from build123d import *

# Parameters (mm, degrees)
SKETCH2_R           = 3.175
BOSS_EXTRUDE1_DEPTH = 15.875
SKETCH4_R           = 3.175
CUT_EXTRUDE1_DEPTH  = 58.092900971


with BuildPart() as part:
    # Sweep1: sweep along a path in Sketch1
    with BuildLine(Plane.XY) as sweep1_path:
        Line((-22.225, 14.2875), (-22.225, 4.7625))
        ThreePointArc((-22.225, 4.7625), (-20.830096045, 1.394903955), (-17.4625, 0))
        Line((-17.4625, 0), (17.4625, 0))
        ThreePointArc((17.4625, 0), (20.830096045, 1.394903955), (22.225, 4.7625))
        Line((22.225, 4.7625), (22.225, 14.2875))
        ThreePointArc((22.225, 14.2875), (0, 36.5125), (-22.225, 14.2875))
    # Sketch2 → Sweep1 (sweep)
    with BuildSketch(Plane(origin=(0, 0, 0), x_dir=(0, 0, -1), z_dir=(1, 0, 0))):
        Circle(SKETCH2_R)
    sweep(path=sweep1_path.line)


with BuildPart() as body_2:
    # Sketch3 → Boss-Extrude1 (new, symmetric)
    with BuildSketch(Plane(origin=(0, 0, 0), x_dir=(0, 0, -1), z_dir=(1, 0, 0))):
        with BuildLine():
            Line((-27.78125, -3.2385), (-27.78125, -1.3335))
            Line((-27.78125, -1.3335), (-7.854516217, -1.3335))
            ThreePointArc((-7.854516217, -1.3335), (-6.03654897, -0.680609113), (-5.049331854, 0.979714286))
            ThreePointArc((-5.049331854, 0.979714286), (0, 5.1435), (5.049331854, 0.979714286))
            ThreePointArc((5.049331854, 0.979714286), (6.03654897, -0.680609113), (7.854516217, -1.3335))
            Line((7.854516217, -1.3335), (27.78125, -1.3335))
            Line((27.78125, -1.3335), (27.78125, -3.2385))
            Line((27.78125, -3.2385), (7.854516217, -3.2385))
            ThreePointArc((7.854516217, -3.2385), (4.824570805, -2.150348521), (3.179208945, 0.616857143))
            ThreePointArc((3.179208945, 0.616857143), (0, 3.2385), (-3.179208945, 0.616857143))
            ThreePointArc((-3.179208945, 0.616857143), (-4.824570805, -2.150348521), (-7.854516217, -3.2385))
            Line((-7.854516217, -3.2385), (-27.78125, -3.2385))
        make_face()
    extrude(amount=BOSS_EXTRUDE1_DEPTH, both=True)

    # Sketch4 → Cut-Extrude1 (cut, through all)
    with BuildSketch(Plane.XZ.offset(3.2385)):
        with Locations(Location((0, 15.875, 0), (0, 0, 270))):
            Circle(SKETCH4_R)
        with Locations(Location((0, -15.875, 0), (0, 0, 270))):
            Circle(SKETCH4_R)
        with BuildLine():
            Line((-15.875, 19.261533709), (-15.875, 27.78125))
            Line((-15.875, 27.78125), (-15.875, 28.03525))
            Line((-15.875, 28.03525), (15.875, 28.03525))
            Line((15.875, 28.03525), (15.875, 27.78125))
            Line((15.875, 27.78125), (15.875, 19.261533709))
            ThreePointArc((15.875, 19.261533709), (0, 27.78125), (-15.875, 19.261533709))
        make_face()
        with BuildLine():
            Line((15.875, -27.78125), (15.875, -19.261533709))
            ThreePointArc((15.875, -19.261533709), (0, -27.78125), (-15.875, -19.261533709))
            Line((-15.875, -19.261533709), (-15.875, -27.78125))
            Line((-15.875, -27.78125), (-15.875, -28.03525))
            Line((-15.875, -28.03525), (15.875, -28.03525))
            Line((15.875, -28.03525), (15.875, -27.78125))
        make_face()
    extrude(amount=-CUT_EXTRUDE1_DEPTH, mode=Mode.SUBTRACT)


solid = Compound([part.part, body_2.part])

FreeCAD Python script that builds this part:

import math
import FreeCAD as App
import Part
import Sketcher

V = App.Vector
Q = App.Units.Quantity

doc = App.newDocument("Part")
body = doc.addObject("PartDesign::Body", "Body")

# Sketch on YZ plane
sketch1 = body.newObject("Sketcher::SketchObject", "Sketch")
sketch1.AttachmentSupport = (doc.getObject("YZ_Plane"), [""])
sketch1.MapMode = "FlatFace"
sketch1.addGeometry(Part.Circle(V(0, 0, 0), V(0, 0, 1), 3.2), False)
sketch1.addConstraint(Sketcher.Constraint("Coincident", 0, 3, -1, 1))
sketch1.addConstraint(Sketcher.Constraint("Diameter", 0, Q("0.25 in")))

# Sketch on XY plane
sketch2 = body.newObject("Sketcher::SketchObject", "Sketch001")
sketch2.AttachmentSupport = (doc.getObject("XY_Plane"), [""])
sketch2.MapMode = "FlatFace"
sketch2.addGeometry(Part.LineSegment(V(-22.2, 14.3, 0), V(-22.2, 4.8, 0)), False)
sketch2.addGeometry(Part.ArcOfCircle(Part.Circle(V(-17.5, 4.8, 0), V(0, 0, 1), 4.8), math.radians(-180), math.radians(-90)), False)
sketch2.addGeometry(Part.LineSegment(V(-17.5, 0, 0), V(17.5, 0, 0)), False)
sketch2.addGeometry(Part.ArcOfCircle(Part.Circle(V(17.5, 4.8, 0), V(0, 0, 1), 4.8), math.radians(-90), math.radians(0)), False)
sketch2.addGeometry(Part.LineSegment(V(22.2, 4.8, 0), V(22.2, 14.3, 0)), False)
sketch2.addGeometry(Part.ArcOfCircle(Part.Circle(V(0, 14.3, 0), V(0, 0, 1), 22.2), math.radians(0), math.radians(180)), False)
sketch2.addConstraint(Sketcher.Constraint("Tangent", 0, 2, 1, 1))
sketch2.addConstraint(Sketcher.Constraint("Tangent", 1, 2, 2, 1))
sketch2.addConstraint(Sketcher.Constraint("Tangent", 2, 2, 3, 1))
sketch2.addConstraint(Sketcher.Constraint("Tangent", 3, 2, 4, 1))
sketch2.addConstraint(Sketcher.Constraint("Tangent", 4, 2, 5, 1))
sketch2.addConstraint(Sketcher.Constraint("Tangent", 5, 2, 0, 1))
sketch2.addConstraint(Sketcher.Constraint("Vertical", 0))
sketch2.addConstraint(Sketcher.Constraint("Horizontal", 2))
sketch2.addConstraint(Sketcher.Constraint("Vertical", 4))
sketch2.addConstraint(Sketcher.Constraint("Equal", 1, 3))
sketch2.addConstraint(Sketcher.Constraint("Symmetric", 1, 2, 2, 2, -1, 1))
sketch2.addConstraint(Sketcher.Constraint("Radius", 1, Q("0.1875 in")))
sketch2.addConstraint(Sketcher.Constraint("Radius", 5, Q("0.875 in")))
sketch2.addConstraint(Sketcher.Constraint("DistanceY", 0, 2, 0, 1, Q("0.375 in")))
doc.recompute()

additivepipe = body.newObject("PartDesign::AdditivePipe", "AdditivePipe")
additivepipe.Profile = sketch1
additivepipe.Spine = (sketch2, ["Edge1", "Edge2", "Edge3", "Edge4", "Edge5", "Edge6"])
body2 = doc.addObject("PartDesign::Body", "Body001")

# Sketch on YZ plane
sketch3 = body2.newObject("Sketcher::SketchObject", "Sketch002")
sketch3.AttachmentSupport = (doc.getObject("YZ_Plane001"), [""])
sketch3.MapMode = "FlatFace"
sketch3.addGeometry(Part.LineSegment(V(-1.3, 27.8, 0), V(-3.2, 27.8, 0)), False)
sketch3.addGeometry(Part.LineSegment(V(-3.2, 27.8, 0), V(-3.2, 7.9, 0)), False)
sketch3.addGeometry(Part.ArcOfCircle(Part.Circle(V(1.5, 7.9, 0), V(0, 0, 1), 4.8), math.radians(180), math.radians(259)), False)
sketch3.addGeometry(Part.ArcOfCircle(Part.Circle(V(0, 0, 0), V(0, 0, 1), 3.2), math.radians(-79), math.radians(79)), False)
sketch3.addGeometry(Part.ArcOfCircle(Part.Circle(V(1.5, -7.9, 0), V(0, 0, 1), 4.8), math.radians(101), math.radians(180)), False)
sketch3.addGeometry(Part.LineSegment(V(-3.2, -7.9, 0), V(-3.2, -27.8, 0)), False)
sketch3.addGeometry(Part.LineSegment(V(-3.2, -27.8, 0), V(-1.3, -27.8, 0)), False)
sketch3.addGeometry(Part.LineSegment(V(-1.3, -27.8, 0), V(-1.3, -7.9, 0)), False)
sketch3.addGeometry(Part.ArcOfCircle(Part.Circle(V(1.5, -7.9, 0), V(0, 0, 1), 2.9), math.radians(101), math.radians(180)), False)
sketch3.addGeometry(Part.ArcOfCircle(Part.Circle(V(0, 0, 0), V(0, 0, 1), 5.1), math.radians(-79), math.radians(79)), False)
sketch3.addGeometry(Part.ArcOfCircle(Part.Circle(V(1.5, 7.9, 0), V(0, 0, 1), 2.9), math.radians(180), math.radians(259)), False)
sketch3.addGeometry(Part.LineSegment(V(-1.3, 7.9, 0), V(-1.3, 27.8, 0)), False)
sketch3.addConstraint(Sketcher.Constraint("Coincident", 0, 2, 1, 1))
sketch3.addConstraint(Sketcher.Constraint("Tangent", 1, 2, 2, 1))
sketch3.addConstraint(Sketcher.Constraint("Tangent", 2, 2, 3, 2))
sketch3.addConstraint(Sketcher.Constraint("Tangent", 3, 1, 4, 1))
sketch3.addConstraint(Sketcher.Constraint("Tangent", 4, 2, 5, 1))
sketch3.addConstraint(Sketcher.Constraint("Coincident", 5, 2, 6, 1))
sketch3.addConstraint(Sketcher.Constraint("Coincident", 6, 2, 7, 1))
sketch3.addConstraint(Sketcher.Constraint("Tangent", 7, 2, 8, 2))
sketch3.addConstraint(Sketcher.Constraint("Tangent", 8, 1, 9, 1))
sketch3.addConstraint(Sketcher.Constraint("Tangent", 9, 2, 10, 2))
sketch3.addConstraint(Sketcher.Constraint("Tangent", 10, 1, 11, 1))
sketch3.addConstraint(Sketcher.Constraint("Coincident", 11, 2, 0, 1))
sketch3.addConstraint(Sketcher.Constraint("Horizontal", 0))
sketch3.addConstraint(Sketcher.Constraint("Vertical", 1))
sketch3.addConstraint(Sketcher.Constraint("Vertical", 5))
sketch3.addConstraint(Sketcher.Constraint("Horizontal", 6))
sketch3.addConstraint(Sketcher.Constraint("Vertical", 7))
sketch3.addConstraint(Sketcher.Constraint("Vertical", 11))
sketch3.addConstraint(Sketcher.Constraint("Coincident", 3, 3, -1, 1))
sketch3.addConstraint(Sketcher.Constraint("Coincident", 9, 3, -1, 1))
sketch3.addConstraint(Sketcher.Constraint("Coincident", 8, 3, 4, 3))
sketch3.addConstraint(Sketcher.Constraint("Coincident", 10, 3, 2, 3))
sketch3.addConstraint(Sketcher.Constraint("Equal", 2, 4))
sketch3.addConstraint(Sketcher.Constraint("Symmetric", 0, 2, 5, 2, -1))
sketch3.addConstraint(Sketcher.Constraint("Radius", 2, Q("0.1875 in")))
sketch3.addConstraint(Sketcher.Constraint("Radius", 3, Q("0.1275 in")))
sketch3.addConstraint(Sketcher.Constraint("Radius", 8, Q("0.1125 in")))
sketch3.addConstraint(Sketcher.Constraint("DistanceX", -1, 1, 2, 3, Q("0.06 in")))
sketch3.addConstraint(Sketcher.Constraint("DistanceY", -1, 1, 0, 2, Q("1.09375 in")))
pad1 = body2.newObject("PartDesign::Pad", "Pad")
pad1.Profile = sketch3
pad1.Length = Q("1.25 in")
pad1.Midplane = True

# Sketch on XZ plane
sketch4 = body2.newObject("Sketcher::SketchObject", "Sketch003")
sketch4.AttachmentSupport = (doc.getObject("XZ_Plane001"), [""])
sketch4.MapMode = "FlatFace"
sketch4.AttachmentOffset = App.Placement(V(0, 0, 0.1275 * 25.4), App.Rotation())
sketch4.addGeometry(Part.Circle(V(0, 15.9, 0), V(0, 0, 1), 3.2), False)
sketch4.addGeometry(Part.Circle(V(0, -15.9, 0), V(0, 0, 1), 3.2), False)
sketch4.addGeometry(Part.LineSegment(V(-15.9, 28, 0), V(-15.9, 19.3, 0)), False)
sketch4.addGeometry(Part.ArcOfCircle(Part.Circle(V(0, 8.7, 0), V(0, 0, 1), 19.1), math.radians(34), math.radians(146)), False)
sketch4.addGeometry(Part.LineSegment(V(15.9, 19.3, 0), V(15.9, 28, 0)), False)
sketch4.addGeometry(Part.LineSegment(V(15.9, 28, 0), V(-15.9, 28, 0)), False)
sketch4.addGeometry(Part.ArcOfCircle(Part.Circle(V(0, -8.7, 0), V(0, 0, 1), 19.1), math.radians(-146), math.radians(-34)), False)
sketch4.addGeometry(Part.LineSegment(V(-15.9, -19.3, 0), V(-15.9, -28, 0)), False)
sketch4.addGeometry(Part.LineSegment(V(-15.9, -28, 0), V(15.9, -28, 0)), False)
sketch4.addGeometry(Part.LineSegment(V(15.9, -28, 0), V(15.9, -19.3, 0)), False)
sketch4.addConstraint(Sketcher.Constraint("Coincident", 2, 2, 3, 2))
sketch4.addConstraint(Sketcher.Constraint("Coincident", 3, 1, 4, 1))
sketch4.addConstraint(Sketcher.Constraint("Coincident", 4, 2, 5, 1))
sketch4.addConstraint(Sketcher.Constraint("Coincident", 5, 2, 2, 1))
sketch4.addConstraint(Sketcher.Constraint("Coincident", 6, 1, 7, 1))
sketch4.addConstraint(Sketcher.Constraint("Coincident", 7, 2, 8, 1))
sketch4.addConstraint(Sketcher.Constraint("Coincident", 8, 2, 9, 1))
sketch4.addConstraint(Sketcher.Constraint("Coincident", 9, 2, 6, 2))
sketch4.addConstraint(Sketcher.Constraint("Vertical", 2))
sketch4.addConstraint(Sketcher.Constraint("Vertical", 4))
sketch4.addConstraint(Sketcher.Constraint("Horizontal", 5))
sketch4.addConstraint(Sketcher.Constraint("Vertical", 7))
sketch4.addConstraint(Sketcher.Constraint("Horizontal", 8))
sketch4.addConstraint(Sketcher.Constraint("Vertical", 9))
sketch4.addConstraint(Sketcher.Constraint("Equal", 0, 1))
sketch4.addConstraint(Sketcher.Constraint("Equal", 3, 6))
sketch4.addConstraint(Sketcher.Constraint("Symmetric", 0, 3, 1, 3, -1, 1))
sketch4.addConstraint(Sketcher.Constraint("Symmetric", 3, 3, 6, 3, -1, 1))
sketch4.addConstraint(Sketcher.Constraint("Symmetric", 4, 2, 7, 2, -1, 1))
sketch4.addConstraint(Sketcher.Constraint("Symmetric", 2, 2, 3, 1, -2))
sketch4.addConstraint(Sketcher.Constraint("PointOnObject", 0, 3, -2))
sketch4.addConstraint(Sketcher.Constraint("Horizontal", 6, 1, 9, 2))
sketch4.addConstraint(Sketcher.Constraint("Diameter", 0, Q("0.25 in")))
sketch4.addConstraint(Sketcher.Constraint("Radius", 3, Q("0.75 in")))
sketch4.addConstraint(Sketcher.Constraint("DistanceX", 5, 2, 5, 1, Q("1.25 in")))
sketch4.addConstraint(Sketcher.Constraint("DistanceY", 1, 3, 0, 3, Q("1.25 in")))
sketch4.addConstraint(Sketcher.Constraint("DistanceY", 3, 3, 4, 2, Q("0.76 in")))
sketch4.addConstraint(Sketcher.Constraint("DistanceY", -1, 1, 3, 3, Q("0.34375 in")))
pocket1 = body2.newObject("PartDesign::Pocket", "Pocket")
pocket1.Profile = sketch4
pocket1.Type = "ThroughAll"

doc.recompute()
